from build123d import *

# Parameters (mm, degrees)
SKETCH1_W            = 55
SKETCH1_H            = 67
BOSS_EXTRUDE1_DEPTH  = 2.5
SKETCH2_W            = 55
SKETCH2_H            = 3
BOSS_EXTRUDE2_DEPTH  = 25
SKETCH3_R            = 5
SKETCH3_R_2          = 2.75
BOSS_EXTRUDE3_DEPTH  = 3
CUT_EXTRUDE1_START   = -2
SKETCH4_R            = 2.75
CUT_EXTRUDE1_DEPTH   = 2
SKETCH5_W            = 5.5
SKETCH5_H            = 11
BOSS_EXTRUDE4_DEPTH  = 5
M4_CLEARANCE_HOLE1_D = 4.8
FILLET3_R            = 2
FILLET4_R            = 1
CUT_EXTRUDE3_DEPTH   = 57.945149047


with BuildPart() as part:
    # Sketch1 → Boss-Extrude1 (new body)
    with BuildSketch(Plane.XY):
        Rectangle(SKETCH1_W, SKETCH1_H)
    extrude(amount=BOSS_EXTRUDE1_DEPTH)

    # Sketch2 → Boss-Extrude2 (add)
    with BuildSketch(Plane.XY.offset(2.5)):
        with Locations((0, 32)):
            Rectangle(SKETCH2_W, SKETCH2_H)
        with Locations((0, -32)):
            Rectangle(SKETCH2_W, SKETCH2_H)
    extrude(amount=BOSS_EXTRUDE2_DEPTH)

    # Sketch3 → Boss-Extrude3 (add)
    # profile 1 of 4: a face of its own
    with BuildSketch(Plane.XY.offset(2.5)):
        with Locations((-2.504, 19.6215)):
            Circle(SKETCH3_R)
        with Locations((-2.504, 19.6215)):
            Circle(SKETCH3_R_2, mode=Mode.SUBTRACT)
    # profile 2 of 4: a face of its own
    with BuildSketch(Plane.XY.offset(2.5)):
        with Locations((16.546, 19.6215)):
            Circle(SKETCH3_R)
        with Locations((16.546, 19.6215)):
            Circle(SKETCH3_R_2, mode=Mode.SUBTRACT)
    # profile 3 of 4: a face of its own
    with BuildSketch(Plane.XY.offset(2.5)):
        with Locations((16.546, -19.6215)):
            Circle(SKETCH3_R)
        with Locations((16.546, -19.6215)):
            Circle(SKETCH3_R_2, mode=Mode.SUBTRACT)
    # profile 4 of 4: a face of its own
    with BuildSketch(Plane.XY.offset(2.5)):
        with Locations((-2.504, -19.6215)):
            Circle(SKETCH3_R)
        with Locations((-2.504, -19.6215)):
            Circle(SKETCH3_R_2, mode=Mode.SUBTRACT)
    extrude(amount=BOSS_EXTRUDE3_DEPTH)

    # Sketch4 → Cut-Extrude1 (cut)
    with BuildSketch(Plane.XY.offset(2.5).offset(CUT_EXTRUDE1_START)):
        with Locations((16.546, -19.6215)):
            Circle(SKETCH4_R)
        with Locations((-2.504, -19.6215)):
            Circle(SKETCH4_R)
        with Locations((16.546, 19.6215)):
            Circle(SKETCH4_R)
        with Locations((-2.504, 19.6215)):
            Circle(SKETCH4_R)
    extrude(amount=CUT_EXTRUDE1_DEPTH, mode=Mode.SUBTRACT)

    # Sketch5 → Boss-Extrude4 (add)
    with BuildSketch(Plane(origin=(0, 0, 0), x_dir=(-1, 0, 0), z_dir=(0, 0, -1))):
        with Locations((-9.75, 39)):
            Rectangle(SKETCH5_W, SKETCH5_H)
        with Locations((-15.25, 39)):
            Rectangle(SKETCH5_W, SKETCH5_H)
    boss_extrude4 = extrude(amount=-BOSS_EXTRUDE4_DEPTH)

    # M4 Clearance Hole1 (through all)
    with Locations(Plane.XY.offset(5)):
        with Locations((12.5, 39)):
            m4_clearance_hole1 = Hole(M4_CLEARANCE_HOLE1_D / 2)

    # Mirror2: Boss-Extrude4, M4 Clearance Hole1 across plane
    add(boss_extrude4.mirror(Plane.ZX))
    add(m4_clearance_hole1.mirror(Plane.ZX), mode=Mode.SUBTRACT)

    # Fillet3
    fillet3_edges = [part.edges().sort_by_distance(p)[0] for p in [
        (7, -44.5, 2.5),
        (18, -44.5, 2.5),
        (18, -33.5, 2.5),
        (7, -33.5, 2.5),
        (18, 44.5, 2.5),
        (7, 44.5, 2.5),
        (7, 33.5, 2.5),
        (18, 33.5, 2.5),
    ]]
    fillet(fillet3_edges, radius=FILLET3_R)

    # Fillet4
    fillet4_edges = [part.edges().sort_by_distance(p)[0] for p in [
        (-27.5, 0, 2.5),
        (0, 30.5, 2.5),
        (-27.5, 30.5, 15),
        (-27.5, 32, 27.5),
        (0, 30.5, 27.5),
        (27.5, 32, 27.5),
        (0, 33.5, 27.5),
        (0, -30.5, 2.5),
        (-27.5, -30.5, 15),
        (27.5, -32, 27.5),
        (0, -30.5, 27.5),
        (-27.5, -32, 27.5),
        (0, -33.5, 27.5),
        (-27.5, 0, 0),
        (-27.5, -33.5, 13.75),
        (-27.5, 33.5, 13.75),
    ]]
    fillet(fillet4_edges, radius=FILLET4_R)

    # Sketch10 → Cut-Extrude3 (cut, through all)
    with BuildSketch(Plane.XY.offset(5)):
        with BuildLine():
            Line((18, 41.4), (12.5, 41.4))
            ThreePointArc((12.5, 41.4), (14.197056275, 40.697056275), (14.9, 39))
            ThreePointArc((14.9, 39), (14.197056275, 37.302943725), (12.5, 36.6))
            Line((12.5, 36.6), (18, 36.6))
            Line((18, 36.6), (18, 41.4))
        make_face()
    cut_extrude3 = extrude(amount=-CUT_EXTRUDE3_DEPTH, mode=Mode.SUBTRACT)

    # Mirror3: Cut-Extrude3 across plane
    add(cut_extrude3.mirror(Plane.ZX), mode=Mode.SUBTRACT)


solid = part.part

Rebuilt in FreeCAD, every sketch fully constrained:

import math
import FreeCAD as App
import Part
import Sketcher

V = App.Vector
Q = App.Units.Quantity


def edges_at(feature, points):
    """Names of the edges that pass closest to the given points."""
    edges = feature.Shape.Edges
    near = lambda p: min(range(len(edges)), key=lambda i: edges[i].distToShape(Part.Vertex(*p))[0])
    return sorted({f"Edge{near(p) + 1}" for p in points})

doc = App.newDocument("Part")
body = doc.addObject("PartDesign::Body", "Body")

# Sketch on XY plane
sketch1 = body.newObject("Sketcher::SketchObject", "Sketch")
sketch1.AttachmentSupport = (doc.getObject("XY_Plane"), [""])
sketch1.MapMode = "FlatFace"
sketch1.addGeometry([
    Part.LineSegment(V(-28, 34, 0), V(-28, -34, 0)),
    Part.LineSegment(V(-28, -34, 0), V(28, -34, 0)),
    Part.LineSegment(V(28, -34, 0), V(28, 34, 0)),
    Part.LineSegment(V(28, 34, 0), V(-28, 34, 0)),
], False)
sketch1.addConstraint([
    Sketcher.Constraint("Coincident", 0, 2, 1, 1),
    Sketcher.Constraint("Coincident", 1, 2, 2, 1),
    Sketcher.Constraint("Coincident", 2, 2, 3, 1),
    Sketcher.Constraint("Coincident", 3, 2, 0, 1),
    Sketcher.Constraint("Vertical", 0),
    Sketcher.Constraint("Horizontal", 1),
    Sketcher.Constraint("Vertical", 2),
    Sketcher.Constraint("Horizontal", 3),
    Sketcher.Constraint("Symmetric", 0, 2, 2, 2, -1, 1),
    Sketcher.Constraint("DistanceX", 1, 1, 1, 2, Q("55 mm")),
    Sketcher.Constraint("DistanceY", 0, 2, 0, 1, Q("67 mm")),
])
pad1 = body.newObject("PartDesign::Pad", "Pad")
pad1.Profile = sketch1
pad1.Length = 2.5

# Sketch on XY plane
sketch2 = body.newObject("Sketcher::SketchObject", "Sketch001")
sketch2.AttachmentSupport = (doc.getObject("XY_Plane"), [""])
sketch2.MapMode = "FlatFace"
sketch2.AttachmentOffset = App.Placement(V(0, 0, 2.5), App.Rotation())
sketch2.addGeometry([
    Part.LineSegment(V(-27.5, 33.5, 0), V(-27.5, 30.5, 0)),  # 0
    Part.LineSegment(V(-27.5, 30.5, 0), V(27.5, 30.5, 0)),  # 1
    Part.LineSegment(V(27.5, 30.5, 0), V(27.5, 33.5, 0)),  # 2
    Part.LineSegment(V(27.5, 33.5, 0), V(-27.5, 33.5, 0)),  # 3
    Part.LineSegment(V(-27.5, -30.5, 0), V(-27.5, -33.5, 0)),  # 4
    Part.LineSegment(V(-27.5, -33.5, 0), V(27.5, -33.5, 0)),  # 5
    Part.LineSegment(V(27.5, -33.5, 0), V(27.5, -30.5, 0)),  # 6
    Part.LineSegment(V(27.5, -30.5, 0), V(-27.5, -30.5, 0)),  # 7
], False)
sketch2.addConstraint([
    Sketcher.Constraint("Coincident", 0, 2, 1, 1),
    Sketcher.Constraint("Coincident", 1, 2, 2, 1),
    Sketcher.Constraint("Coincident", 2, 2, 3, 1),
    Sketcher.Constraint("Coincident", 3, 2, 0, 1),
    Sketcher.Constraint("Coincident", 4, 2, 5, 1),
    Sketcher.Constraint("Coincident", 5, 2, 6, 1),
    Sketcher.Constraint("Coincident", 6, 2, 7, 1),
    Sketcher.Constraint("Coincident", 7, 2, 4, 1),
    Sketcher.Constraint("Vertical", 0),
    Sketcher.Constraint("Horizontal", 1),
    Sketcher.Constraint("Vertical", 2),
    Sketcher.Constraint("Horizontal", 3),
    Sketcher.Constraint("Vertical", 4),
    Sketcher.Constraint("Horizontal", 5),
    Sketcher.Constraint("Vertical", 6),
    Sketcher.Constraint("Horizontal", 7),
    Sketcher.Constraint("Symmetric", 2, 2, 4, 2, -1, 1),
    Sketcher.Constraint("Symmetric", 0, 2, 6, 2, -1, 1),
    Sketcher.Constraint("Vertical", 3, 2, 4, 2),
    Sketcher.Constraint("DistanceX", 1, 1, 1, 2, Q("55 mm")),
    Sketcher.Constraint("DistanceY", 0, 2, 0, 1, Q("3 mm")),
    Sketcher.Constraint("DistanceY", 4, 2, 0, 2, Q("64 mm")),
])
pad2 = body.newObject("PartDesign::Pad", "Pad001")
pad2.Profile = sketch2
pad2.Length = 25

# Sketch on XY plane
sketch3 = body.newObject("Sketcher::SketchObject", "Sketch002")
sketch3.AttachmentSupport = (doc.getObject("XY_Plane"), [""])
sketch3.MapMode = "FlatFace"
sketch3.AttachmentOffset = App.Placement(V(0, 0, 2.5), App.Rotation())
sketch3.addGeometry([
    Part.Circle(V(-2.5, 19.6, 0), V(0, 0, 1), 5),  # 0
    Part.Circle(V(-2.5, 19.6, 0), V(0, 0, 1), 2.8),  # 1
    Part.Circle(V(16.5, 19.6, 0), V(0, 0, 1), 5),  # 2
    Part.Circle(V(16.5, 19.6, 0), V(0, 0, 1), 2.8),  # 3
    Part.Circle(V(16.5, -19.6, 0), V(0, 0, 1), 5),  # 4
    Part.Circle(V(16.5, -19.6, 0), V(0, 0, 1), 2.8),  # 5
    Part.Circle(V(-2.5, -19.6, 0), V(0, 0, 1), 5),  # 6
    Part.Circle(V(-2.5, -19.6, 0), V(0, 0, 1), 2.8),  # 7
], False)
sketch3.addConstraint([
    Sketcher.Constraint("Coincident", 1, 3, 0, 3),
    Sketcher.Constraint("Coincident", 3, 3, 2, 3),
    Sketcher.Constraint("Coincident", 5, 3, 4, 3),
    Sketcher.Constraint("Coincident", 7, 3, 6, 3),
    Sketcher.Constraint("Equal", 0, 2),
    Sketcher.Constraint("Equal", 1, 3),
    Sketcher.Constraint("Equal", 2, 4),
    Sketcher.Constraint("Equal", 3, 5),
    Sketcher.Constraint("Equal", 4, 6),
    Sketcher.Constraint("Equal", 5, 7),
    Sketcher.Constraint("Symmetric", 2, 3, 4, 3, -1),
    Sketcher.Constraint("Symmetric", 0, 3, 6, 3, -1),
    Sketcher.Constraint("Horizontal", 1, 3, 2, 3),
    Sketcher.Constraint("Diameter", 0, Q("10 mm")),
    Sketcher.Constraint("Diameter", 1, Q("5.5 mm")),
    Sketcher.Constraint("DistanceX", 0, 3, 2, 3, Q("19.05 mm")),
    Sketcher.Constraint("DistanceX", 0, 3, -1, 1, Q("2.504 mm")),
    Sketcher.Constraint("DistanceY", 4, 3, 2, 3, Q("39.243 mm")),
])
pad3 = body.newObject("PartDesign::Pad", "Pad002")
pad3.Profile = sketch3
pad3.Length = 3

# Sketch on XY plane
sketch4 = body.newObject("Sketcher::SketchObject", "Sketch003")
sketch4.AttachmentSupport = (doc.getObject("XY_Plane"), [""])
sketch4.MapMode = "FlatFace"
sketch4.AttachmentOffset = App.Placement(V(0, 0, 0.5), App.Rotation())
sketch4.addGeometry([
    Part.Circle(V(16.5, -19.6, 0), V(0, 0, 1), 2.8),
    Part.Circle(V(-2.5, -19.6, 0), V(0, 0, 1), 2.8),
    Part.Circle(V(16.5, 19.6, 0), V(0, 0, 1), 2.8),
    Part.Circle(V(-2.5, 19.6, 0), V(0, 0, 1), 2.8),
], False)
sketch4.addConstraint([
    Sketcher.Constraint("Equal", 0, 1),
    Sketcher.Constraint("Equal", 1, 2),
    Sketcher.Constraint("Equal", 2, 3),
    Sketcher.Constraint("Symmetric", 0, 3, 2, 3, -1),
    Sketcher.Constraint("Symmetric", 1, 3, 3, 3, -1),
    Sketcher.Constraint("Horizontal", 0, 3, 1, 3),
    Sketcher.Constraint("Diameter", 0, Q("5.5 mm")),
    Sketcher.Constraint("DistanceX", 1, 3, 0, 3, Q("19.05 mm")),
    Sketcher.Constraint("DistanceX", -1, 1, 0, 3, Q("16.546 mm")),
    Sketcher.Constraint("DistanceY", 0, 3, 2, 3, Q("39.243 mm")),
])
pocket1 = body.newObject("PartDesign::Pocket", "Pocket")
pocket1.Profile = sketch4
pocket1.Length = 2
pocket1.Reversed = True

# Sketch on XY plane
sketch5 = body.newObject("Sketcher::SketchObject", "Sketch004")
sketch5.AttachmentSupport = (doc.getObject("XY_Plane"), [""])
sketch5.MapMode = "FlatFace"
sketch5.addGeometry([
    Part.LineSegment(V(7, 34, 0), V(7, 44, 0)),
    Part.LineSegment(V(7, 44, 0), V(18, 44, 0)),
    Part.LineSegment(V(18, 44, 0), V(18, 34, 0)),
    Part.LineSegment(V(18, 34, 0), V(7, 34, 0)),
], False)
sketch5.addConstraint([
    Sketcher.Constraint("Coincident", 0, 2, 1, 1),
    Sketcher.Constraint("Coincident", 1, 2, 2, 1),
    Sketcher.Constraint("Coincident", 2, 2, 3, 1),
    Sketcher.Constraint("Coincident", 3, 2, 0, 1),
    Sketcher.Constraint("Vertical", 0),
    Sketcher.Constraint("Horizontal", 1),
    Sketcher.Constraint("Vertical", 2),
    Sketcher.Constraint("Horizontal", 3),
    Sketcher.Constraint("Equal", 3, 0),
    Sketcher.Constraint("DistanceX", 1, 1, 1, 2, Q("11 mm")),
    Sketcher.Constraint("DistanceX", -1, 1, 0, 2, Q("7 mm")),
    Sketcher.Constraint("DistanceY", -1, 1, 0, 2, Q("44.5 mm")),
])
pad4 = body.newObject("PartDesign::Pad", "Pad003")
pad4.Profile = sketch5
pad4.Length = 5

# Sketch on XY plane
sketch6 = body.newObject("Sketcher::SketchObject", "Sketch005")
sketch6.AttachmentSupport = (doc.getObject("XY_Plane"), [""])
sketch6.MapMode = "FlatFace"
sketch6.AttachmentOffset = App.Placement(V(0, 0, 5), App.Rotation())
sketch6.addGeometry(Part.Circle(V(12.5, 39, 0), V(0, 0, 1), 2.4), False)
sketch6.addConstraint([
    Sketcher.Constraint("Diameter", 0, Q("4.8 mm")),
    Sketcher.Constraint("DistanceY", -1, 1, 0, 3, Q("39 mm")),
    Sketcher.Constraint("DistanceX", -1, 1, 0, 3, Q("12.5 mm")),
])
doc.recompute()
hole = body.newObject("PartDesign::Hole", "Hole")
hole.Profile = sketch6
hole.ThreadType = "None"
hole.Diameter = 4.8
hole.DepthType = "ThroughAll"
doc.recompute()

mirrored = body.newObject("PartDesign::Mirrored", "Mirrored")
mirrored.Originals = [pad4, hole]
mirrored.MirrorPlane = (doc.getObject("XZ_Plane"), [""])
body.Tip = mirrored
doc.recompute()

fillet = body.newObject("PartDesign::Fillet", "Fillet")
fillet.Base = (mirrored, edges_at(mirrored, [
    (7, -44.5, 2.5),
    (18, -44.5, 2.5),
    (18, -33.5, 2.5),
    (7, -33.5, 2.5),
    (18, 44.5, 2.5),
    (7, 44.5, 2.5),
    (7, 33.5, 2.5),
    (18, 33.5, 2.5),
]))
fillet.Radius = 2
doc.recompute()

fillet2 = body.newObject("PartDesign::Fillet", "Fillet001")
fillet2.Base = (fillet, edges_at(fillet, [
    (-27.5, 0, 2.5),
    (0, 30.5, 2.5),
    (-27.5, 30.5, 15),
    (-27.5, 32, 27.5),
    (0, 30.5, 27.5),
    (27.5, 32, 27.5),
    (0, 33.5, 27.5),
    (0, -30.5, 2.5),
    (-27.5, -30.5, 15),
    (27.5, -32, 27.5),
    (0, -30.5, 27.5),
    (-27.5, -32, 27.5),
    (0, -33.5, 27.5),
    (-27.5, 0, 0),
    (-27.5, -33.5, 13.75),
    (-27.5, 33.5, 13.75),
]))
fillet2.Radius = 1

# Sketch on XY plane
sketch7 = body.newObject("Sketcher::SketchObject", "Sketch006")
sketch7.AttachmentSupport = (doc.getObject("XY_Plane"), [""])
sketch7.MapMode = "FlatFace"
sketch7.AttachmentOffset = App.Placement(V(0, 0, 5), App.Rotation())
sketch7.addGeometry([
    Part.LineSegment(V(18, 41.4, 0), V(12.5, 41.4, 0)),  # 0
    Part.ArcOfCircle(Part.Circle(V(12.5, 39, 0), V(0, 0, 1), 2.4), math.radians(0), math.radians(90)),  # 1
    Part.ArcOfCircle(Part.Circle(V(12.5, 39, 0), V(0, 0, 1), 2.4), math.radians(-90), math.radians(0)),  # 2
    Part.LineSegment(V(12.5, 36.6, 0), V(18, 36.6, 0)),  # 3
    Part.LineSegment(V(18, 36.6, 0), V(18, 41.4, 0)),  # 4
], False)
sketch7.addConstraint([
    Sketcher.Constraint("Tangent", 0, 2, 1, 2),
    Sketcher.Constraint("Tangent", 1, 1, 2, 2),
    Sketcher.Constraint("Tangent", 2, 1, 3, 1),
    Sketcher.Constraint("Coincident", 3, 2, 4, 1),
    Sketcher.Constraint("Coincident", 4, 2, 0, 1),
    Sketcher.Constraint("Horizontal", 0),
    Sketcher.Constraint("Horizontal", 3),
    Sketcher.Constraint("Vertical", 4),
    Sketcher.Constraint("Equal", 1, 2),
    Sketcher.Constraint("Horizontal", 2, 3, 1, 1),
    Sketcher.Constraint("Radius", 1, Q("2.4 mm")),
    Sketcher.Constraint("DistanceX", 0, 2, 0, 1, Q("5.5 mm")),
    Sketcher.Constraint("DistanceY", -1, 1, 1, 3, Q("39 mm")),
    Sketcher.Constraint("DistanceX", -1, 1, 3, 2, Q("18 mm")),
])
pocket2 = body.newObject("PartDesign::Pocket", "Pocket001")
pocket2.Profile = sketch7
pocket2.Type = "ThroughAll"
doc.recompute()

mirrored2 = body.newObject("PartDesign::Mirrored", "Mirrored001")
mirrored2.Originals = [pocket2]
mirrored2.MirrorPlane = (doc.getObject("XZ_Plane"), [""])
body.Tip = mirrored2

doc.recompute()
